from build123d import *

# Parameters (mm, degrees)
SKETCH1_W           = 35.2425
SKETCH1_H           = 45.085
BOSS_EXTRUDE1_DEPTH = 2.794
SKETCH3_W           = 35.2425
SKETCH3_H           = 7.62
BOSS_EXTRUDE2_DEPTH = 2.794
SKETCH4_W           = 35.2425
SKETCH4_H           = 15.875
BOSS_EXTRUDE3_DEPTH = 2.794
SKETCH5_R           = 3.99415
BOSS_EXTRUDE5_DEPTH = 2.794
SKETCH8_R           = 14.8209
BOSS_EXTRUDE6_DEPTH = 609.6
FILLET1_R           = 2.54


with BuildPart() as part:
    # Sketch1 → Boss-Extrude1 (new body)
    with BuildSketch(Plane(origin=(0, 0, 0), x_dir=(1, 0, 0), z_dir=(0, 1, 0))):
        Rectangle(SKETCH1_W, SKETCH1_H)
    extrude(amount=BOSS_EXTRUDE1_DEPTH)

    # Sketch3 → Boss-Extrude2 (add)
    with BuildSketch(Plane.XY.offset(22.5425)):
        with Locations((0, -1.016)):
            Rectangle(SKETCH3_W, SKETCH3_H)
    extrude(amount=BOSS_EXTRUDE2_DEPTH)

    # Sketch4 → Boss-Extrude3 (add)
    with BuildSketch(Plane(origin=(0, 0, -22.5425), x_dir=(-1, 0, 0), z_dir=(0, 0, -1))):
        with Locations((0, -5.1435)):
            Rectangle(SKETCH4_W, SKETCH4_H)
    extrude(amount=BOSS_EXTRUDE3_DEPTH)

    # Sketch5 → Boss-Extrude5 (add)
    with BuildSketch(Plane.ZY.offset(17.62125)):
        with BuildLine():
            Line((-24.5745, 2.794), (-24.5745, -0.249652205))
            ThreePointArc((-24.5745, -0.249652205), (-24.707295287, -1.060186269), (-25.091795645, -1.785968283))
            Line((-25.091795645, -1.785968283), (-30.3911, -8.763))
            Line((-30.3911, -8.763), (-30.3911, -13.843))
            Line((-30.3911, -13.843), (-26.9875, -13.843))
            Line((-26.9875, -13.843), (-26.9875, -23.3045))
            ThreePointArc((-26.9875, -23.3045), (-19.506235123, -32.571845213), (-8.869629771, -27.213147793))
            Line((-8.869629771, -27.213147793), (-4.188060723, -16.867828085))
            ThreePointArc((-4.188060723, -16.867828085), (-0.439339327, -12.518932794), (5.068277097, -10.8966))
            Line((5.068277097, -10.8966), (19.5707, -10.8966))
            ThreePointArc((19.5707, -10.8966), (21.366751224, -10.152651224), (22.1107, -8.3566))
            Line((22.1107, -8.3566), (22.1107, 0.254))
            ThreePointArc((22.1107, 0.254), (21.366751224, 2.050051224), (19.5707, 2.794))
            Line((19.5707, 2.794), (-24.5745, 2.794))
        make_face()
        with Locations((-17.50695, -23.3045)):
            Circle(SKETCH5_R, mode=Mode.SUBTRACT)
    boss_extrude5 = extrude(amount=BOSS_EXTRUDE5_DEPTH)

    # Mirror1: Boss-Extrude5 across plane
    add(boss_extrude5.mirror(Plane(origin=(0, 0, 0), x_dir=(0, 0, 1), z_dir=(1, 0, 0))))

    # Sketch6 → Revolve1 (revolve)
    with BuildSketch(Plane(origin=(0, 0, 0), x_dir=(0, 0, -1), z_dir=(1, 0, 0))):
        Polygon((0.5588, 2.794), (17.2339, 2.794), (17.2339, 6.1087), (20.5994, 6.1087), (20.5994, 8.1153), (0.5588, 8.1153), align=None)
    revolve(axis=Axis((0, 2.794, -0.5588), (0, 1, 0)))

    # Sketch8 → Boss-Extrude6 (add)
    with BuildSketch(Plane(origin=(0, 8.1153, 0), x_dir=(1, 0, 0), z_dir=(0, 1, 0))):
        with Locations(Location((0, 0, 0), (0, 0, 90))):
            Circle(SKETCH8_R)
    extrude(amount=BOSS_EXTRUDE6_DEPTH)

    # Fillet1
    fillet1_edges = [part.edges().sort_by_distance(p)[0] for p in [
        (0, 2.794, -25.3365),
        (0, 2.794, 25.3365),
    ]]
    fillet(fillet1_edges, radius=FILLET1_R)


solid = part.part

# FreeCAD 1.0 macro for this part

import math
import FreeCAD as App
import Part
import Sketcher
from FreeCAD import Vector
Q = App.Units.Quantity


def edges_at(feature, points):
    """Names of the edges that pass closest to the given points."""
    edges = feature.Shape.Edges
    near = lambda p: min(range(len(edges)), key=lambda i: edges[i].distToShape(Part.Vertex(*p))[0])
    return sorted({f"Edge{near(p) + 1}" for p in points})


def add_polygon(sketch, points):
    """Adds a closed chain of lines whose ends are joined by coincident constraints."""
    first, n = sketch.GeometryCount, len(points)
    for a, b in zip(points, points[1:] + points[:1]):
        sketch.addGeometry(Part.LineSegment(App.Vector(*a, 0), App.Vector(*b, 0)), False)
    for i in range(n):
        sketch.addConstraint(Sketcher.Constraint("Coincident", first + i, 2, first + (i + 1) % n, 1))

doc = App.newDocument("Part")
body = doc.addObject("PartDesign::Body", "Body")

# Sketch on XZ plane
sketch1 = body.newObject("Sketcher::SketchObject", "Sketch")
sketch1.AttachmentSupport = (doc.getObject("XZ_Plane"), [""])
sketch1.MapMode = "FlatFace"
add_polygon(sketch1, [(-18, -23), (-18, 23), (18, 23), (18, -23)])  # lines 0-3
sketch1.addConstraint(Sketcher.Constraint("Vertical", 0))
sketch1.addConstraint(Sketcher.Constraint("Horizontal", 1))
sketch1.addConstraint(Sketcher.Constraint("Vertical", 2))
sketch1.addConstraint(Sketcher.Constraint("Horizontal", 3))
sketch1.addConstraint(Sketcher.Constraint("Symmetric", 0, 2, 2, 2, -1, 1))
sketch1.addConstraint(Sketcher.Constraint("DistanceY", 0, 1, 0, 2, Q("1.775 in")))
sketch1.addConstraint(Sketcher.Constraint("DistanceX", 1, 1, 1, 2, Q("1.3875 in")))
pad1 = body.newObject("PartDesign::Pad", "Pad")
pad1.Profile = sketch1
pad1.Length = Q("0.11 in")
pad1.Reversed = True

# Sketch on XY plane
sketch2 = body.newObject("Sketcher::SketchObject", "Sketch001")
sketch2.AttachmentSupport = (doc.getObject("XY_Plane"), [""])
sketch2.MapMode = "FlatFace"
sketch2.AttachmentOffset = App.Placement(Vector(0, 0, 0.8875 * 25.4), App.Rotation())
add_polygon(sketch2, [(-18, 3), (-18, -5), (18, -5), (18, 3)])  # lines 0-3
sketch2.addConstraint(Sketcher.Constraint("Vertical", 0))
sketch2.addConstraint(Sketcher.Constraint("Horizontal", 1))
sketch2.addConstraint(Sketcher.Constraint("Vertical", 2))
sketch2.addConstraint(Sketcher.Constraint("Horizontal", 3))
sketch2.addConstraint(Sketcher.Constraint("DistanceY", 0, 2, 0, 1, Q("0.3 in")))
sketch2.addConstraint(Sketcher.Constraint("DistanceY", 0, 2, -1, 1, Q("0.19 in")))
sketch2.addConstraint(Sketcher.Constraint("DistanceX", 1, 1, 1, 2, Q("1.3875 in")))
sketch2.addConstraint(Sketcher.Constraint("DistanceX", 0, 2, -1, 1, Q("17.62125 mm")))
pad2 = body.newObject("PartDesign::Pad", "Pad001")
pad2.Profile = sketch2
pad2.Length = Q("0.11 in")

# Sketch on XY plane
sketch3 = body.newObject("Sketcher::SketchObject", "Sketch002")
sketch3.AttachmentSupport = (doc.getObject("XY_Plane"), [""])
sketch3.MapMode = "FlatFace"
sketch3.AttachmentOffset = App.Placement(Vector(0, 0, -0.8875 * 25.4), App.Rotation())
add_polygon(sketch3, [(18, 3), (18, -13), (-18, -13), (-18, 3)])  # lines 0-3
sketch3.addConstraint(Sketcher.Constraint("Vertical", 0))
sketch3.addConstraint(Sketcher.Constraint("Horizontal", 1))
sketch3.addConstraint(Sketcher.Constraint("Vertical", 2))
sketch3.addConstraint(Sketcher.Constraint("Horizontal", 3))
sketch3.addConstraint(Sketcher.Constraint("DistanceY", 0, 2, 0, 1, Q("0.625 in")))
sketch3.addConstraint(Sketcher.Constraint("DistanceY", -1, 1, 2, 2, Q("0.11 in")))
sketch3.addConstraint(Sketcher.Constraint("DistanceX", 1, 2, 1, 1, Q("1.3875 in")))
sketch3.addConstraint(Sketcher.Constraint("DistanceX", -1, 1, 0, 2, Q("17.62125 mm")))
pad3 = body.newObject("PartDesign::Pad", "Pad002")
pad3.Profile = sketch3
pad3.Length = Q("0.11 in")
pad3.Reversed = True

# Sketch on YZ plane
sketch4 = body.newObject("Sketcher::SketchObject", "Sketch003")
sketch4.AttachmentSupport = (doc.getObject("YZ_Plane"), [""])
sketch4.MapMode = "FlatFace"
sketch4.AttachmentOffset = App.Placement(Vector(0, 0, -17.62125), App.Rotation())
sketch4.addGeometry(Part.LineSegment(Vector(2.8, -24.6, 0), Vector(-0.2, -24.6, 0)), False)
sketch4.addGeometry(Part.ArcOfCircle(Part.Circle(Vector(-0.2, -27.1, 0), Vector(0, 0, 1), 2.5), math.radians(90), math.radians(127)), False)
sketch4.addGeometry(Part.LineSegment(Vector(-1.8, -25.1, 0), Vector(-8.8, -30.4, 0)), False)
sketch4.addGeometry(Part.LineSegment(Vector(-8.8, -30.4, 0), Vector(-13.8, -30.4, 0)), False)
sketch4.addGeometry(Part.LineSegment(Vector(-13.8, -30.4, 0), Vector(-13.8, -27, 0)), False)
sketch4.addGeometry(Part.LineSegment(Vector(-13.8, -27, 0), Vector(-23.3, -27, 0)), False)
sketch4.addGeometry(Part.ArcOfCircle(Part.Circle(Vector(-23.3, -17.5, 0), Vector(0, 0, 1), 9.5), math.radians(114), math.radians(270)), False)
sketch4.addGeometry(Part.LineSegment(Vector(-27.2, -8.9, 0), Vector(-16.9, -4.2, 0)), False)
sketch4.addGeometry(Part.ArcOfCircle(Part.Circle(Vector(-21.1, 5.1, 0), Vector(0, 0, 1), 10.2), math.radians(-66), math.radians(0)), False)
sketch4.addGeometry(Part.LineSegment(Vector(-10.9, 5.1, 0), Vector(-10.9, 19.6, 0)), False)
sketch4.addGeometry(Part.ArcOfCircle(Part.Circle(Vector(-8.4, 19.6, 0), Vector(0, 0, 1), 2.5), math.radians(90), math.radians(180)), False)
sketch4.addGeometry(Part.LineSegment(Vector(-8.4, 22.1, 0), Vector(0.3, 22.1, 0)), False)
sketch4.addGeometry(Part.ArcOfCircle(Part.Circle(Vector(0.3, 19.6, 0), Vector(0, 0, 1), 2.5), math.radians(0), math.radians(90)), False)
sketch4.addGeometry(Part.LineSegment(Vector(2.8, 19.6, 0), Vector(2.8, -24.6, 0)), False)
sketch4.addGeometry(Part.Circle(Vector(-23.3, -17.5, 0), Vector(0, 0, 1), 4), False)
sketch4.addConstraint(Sketcher.Constraint("Tangent", 0, 2, 1, 1))
sketch4.addConstraint(Sketcher.Constraint("Tangent", 1, 2, 2, 1))
sketch4.addConstraint(Sketcher.Constraint("Coincident", 2, 2, 3, 1))
sketch4.addConstraint(Sketcher.Constraint("Coincident", 3, 2, 4, 1))
sketch4.addConstraint(Sketcher.Constraint("Coincident", 4, 2, 5, 1))
sketch4.addConstraint(Sketcher.Constraint("Tangent", 5, 2, 6, 2))
sketch4.addConstraint(Sketcher.Constraint("Tangent", 6, 1, 7, 1))
sketch4.addConstraint(Sketcher.Constraint("Tangent", 7, 2, 8, 1))
sketch4.addConstraint(Sketcher.Constraint("Tangent", 8, 2, 9, 1))
sketch4.addConstraint(Sketcher.Constraint("Tangent", 9, 2, 10, 2))
sketch4.addConstraint(Sketcher.Constraint("Tangent", 10, 1, 11, 1))
sketch4.addConstraint(Sketcher.Constraint("Tangent", 11, 2, 12, 2))
sketch4.addConstraint(Sketcher.Constraint("Tangent", 12, 1, 13, 1))
sketch4.addConstraint(Sketcher.Constraint("Coincident", 13, 2, 0, 1))
sketch4.addConstraint(Sketcher.Constraint("Horizontal", 0))
sketch4.addConstraint(Sketcher.Constraint("Horizontal", 3))
sketch4.addConstraint(Sketcher.Constraint("Vertical", 4))
sketch4.addConstraint(Sketcher.Constraint("Horizontal", 5))
sketch4.addConstraint(Sketcher.Constraint("Vertical", 9))
sketch4.addConstraint(Sketcher.Constraint("Horizontal", 11))
sketch4.addConstraint(Sketcher.Constraint("Vertical", 13))
sketch4.addConstraint(Sketcher.Constraint("Coincident", 14, 3, 6, 3))
sketch4.addConstraint(Sketcher.Constraint("Equal", 1, 10))
sketch4.addConstraint(Sketcher.Constraint("Equal", 10, 12))
sketch4.addConstraint(Sketcher.Constraint("Radius", 1, Q("0.1 in")))
sketch4.addConstraint(Sketcher.Constraint("Radius", 8, Q("0.4 in")))
sketch4.addConstraint(Sketcher.Constraint("DistanceX", 3, 2, 3, 1, Q("0.2 in")))
sketch4.addConstraint(Sketcher.Constraint("Diameter", 14, Q("0.3145 in")))
sketch4.addConstraint(Sketcher.Constraint("DistanceX", 11, 1, 11, 2, Q("0.339 in")))
sketch4.addConstraint(Sketcher.Constraint("DistanceY", 4, 1, 4, 2, Q("0.134 in")))
sketch4.addConstraint(Sketcher.Constraint("DistanceY", 13, 2, 13, 1, Q("1.738 in")))
sketch4.addConstraint(Sketcher.Constraint("DistanceX", -1, 1, 12, 3, Q("0.01 in")))
sketch4.addConstraint(Sketcher.Constraint("DistanceX", 5, 2, 5, 1, Q("0.3725 in")))
sketch4.addConstraint(Sketcher.Constraint("DistanceX", 2, 2, -1, 1, Q("0.345 in")))
sketch4.addConstraint(Sketcher.Constraint("DistanceY", 4, 2, -1, 1, Q("1.0625 in")))
sketch4.addConstraint(Sketcher.Constraint("Radius", 6, Q("9.48055 mm")))
sketch4.addConstraint(Sketcher.Constraint("DistanceY", 2, 2, 1, 3, Q("0.129 in")))
sketch4.addConstraint(Sketcher.Constraint("Distance", 2, Q("8.76137 mm")))
sketch4.addConstraint(Sketcher.Constraint("DistanceY", 9, 1, 9, 2, Q("14.502423 mm")))
pad4 = body.newObject("PartDesign::Pad", "Pad003")
pad4.Profile = sketch4
pad4.Length = Q("0.11 in")
pad4.Reversed = True
doc.recompute()

mirrored = body.newObject("PartDesign::Mirrored", "Mirrored")
mirrored.Originals = [pad4]
mirrored.MirrorPlane = (doc.getObject("YZ_Plane"), [""])
body.Tip = mirrored

# Sketch on YZ plane
sketch5 = body.newObject("Sketcher::SketchObject", "Sketch004")
sketch5.AttachmentSupport = (doc.getObject("YZ_Plane"), [""])
sketch5.MapMode = "FlatFace"
add_polygon(sketch5, [(2.8, -0.6), (2.8, -17.2), (6.1, -17.2), (6.1, -20.6), (8.1, -20.6), (8.1, -0.6)])  # lines 0-5
sketch5.addGeometry(Part.LineSegment(Vector(2.8, -0.6, 0), Vector(8.1, -0.6, 0)), True)  # axis
sketch5.addConstraint(Sketcher.Constraint("Vertical", 0))
sketch5.addConstraint(Sketcher.Constraint("Horizontal", 1))
sketch5.addConstraint(Sketcher.Constraint("Vertical", 2))
sketch5.addConstraint(Sketcher.Constraint("Horizontal", 3))
sketch5.addConstraint(Sketcher.Constraint("Vertical", 4))
sketch5.addConstraint(Sketcher.Constraint("Horizontal", 5))
sketch5.addConstraint(Sketcher.Constraint("Horizontal", 6))
sketch5.addConstraint(Sketcher.Constraint("Coincident", 6, 1, 5, 2))
sketch5.addConstraint(Sketcher.Constraint("Vertical", 3, 2, 6, 2))
sketch5.addConstraint(Sketcher.Constraint("DistanceX", 3, 1, 3, 2, Q("0.079 in")))
sketch5.addConstraint(Sketcher.Constraint("DistanceY", 4, 1, 4, 2, Q("0.789 in")))
sketch5.addConstraint(Sketcher.Constraint("DistanceX", -1, 1, 0, 2, Q("0.11 in")))
sketch5.addConstraint(Sketcher.Constraint("DistanceX", 1, 1, 1, 2, Q("0.1305 in")))
sketch5.addConstraint(Sketcher.Constraint("DistanceY", 0, 2, 0, 1, Q("0.6565 in")))
sketch5.addConstraint(Sketcher.Constraint("DistanceY", 2, 2, -1, 1, Q("0.811 in")))
revolution = body.newObject("PartDesign::Revolution", "Revolution")
revolution.Profile = sketch5
revolution.ReferenceAxis = (sketch5, ["Axis0"])
revolution.Angle = 360

# Sketch on XZ plane
sketch6 = body.newObject("Sketcher::SketchObject", "Sketch005")
sketch6.AttachmentSupport = (doc.getObject("XZ_Plane"), [""])
sketch6.MapMode = "FlatFace"
sketch6.AttachmentOffset = App.Placement(Vector(0, 0, -0.3195 * 25.4), App.Rotation())
sketch6.addGeometry(Part.Circle(Vector(0, 0, 0), Vector(0, 0, 1), 15), False)
sketch6.addConstraint(Sketcher.Constraint("Coincident", 0, 3, -1, 1))
sketch6.addConstraint(Sketcher.Constraint("Diameter", 0, Q("1.167 in")))
pad5 = body.newObject("PartDesign::Pad", "Pad004")
pad5.Profile = sketch6
pad5.Length = Q("24 in")
pad5.Reversed = True
doc.recompute()

fillet = body.newObject("PartDesign::Fillet", "Fillet")
fillet.Base = (pad5, edges_at(pad5, [(0, 2.794, -25.337), (0, 2.794, 25.337)]))
fillet.Radius = Q("0.1 in")

doc.recompute()
